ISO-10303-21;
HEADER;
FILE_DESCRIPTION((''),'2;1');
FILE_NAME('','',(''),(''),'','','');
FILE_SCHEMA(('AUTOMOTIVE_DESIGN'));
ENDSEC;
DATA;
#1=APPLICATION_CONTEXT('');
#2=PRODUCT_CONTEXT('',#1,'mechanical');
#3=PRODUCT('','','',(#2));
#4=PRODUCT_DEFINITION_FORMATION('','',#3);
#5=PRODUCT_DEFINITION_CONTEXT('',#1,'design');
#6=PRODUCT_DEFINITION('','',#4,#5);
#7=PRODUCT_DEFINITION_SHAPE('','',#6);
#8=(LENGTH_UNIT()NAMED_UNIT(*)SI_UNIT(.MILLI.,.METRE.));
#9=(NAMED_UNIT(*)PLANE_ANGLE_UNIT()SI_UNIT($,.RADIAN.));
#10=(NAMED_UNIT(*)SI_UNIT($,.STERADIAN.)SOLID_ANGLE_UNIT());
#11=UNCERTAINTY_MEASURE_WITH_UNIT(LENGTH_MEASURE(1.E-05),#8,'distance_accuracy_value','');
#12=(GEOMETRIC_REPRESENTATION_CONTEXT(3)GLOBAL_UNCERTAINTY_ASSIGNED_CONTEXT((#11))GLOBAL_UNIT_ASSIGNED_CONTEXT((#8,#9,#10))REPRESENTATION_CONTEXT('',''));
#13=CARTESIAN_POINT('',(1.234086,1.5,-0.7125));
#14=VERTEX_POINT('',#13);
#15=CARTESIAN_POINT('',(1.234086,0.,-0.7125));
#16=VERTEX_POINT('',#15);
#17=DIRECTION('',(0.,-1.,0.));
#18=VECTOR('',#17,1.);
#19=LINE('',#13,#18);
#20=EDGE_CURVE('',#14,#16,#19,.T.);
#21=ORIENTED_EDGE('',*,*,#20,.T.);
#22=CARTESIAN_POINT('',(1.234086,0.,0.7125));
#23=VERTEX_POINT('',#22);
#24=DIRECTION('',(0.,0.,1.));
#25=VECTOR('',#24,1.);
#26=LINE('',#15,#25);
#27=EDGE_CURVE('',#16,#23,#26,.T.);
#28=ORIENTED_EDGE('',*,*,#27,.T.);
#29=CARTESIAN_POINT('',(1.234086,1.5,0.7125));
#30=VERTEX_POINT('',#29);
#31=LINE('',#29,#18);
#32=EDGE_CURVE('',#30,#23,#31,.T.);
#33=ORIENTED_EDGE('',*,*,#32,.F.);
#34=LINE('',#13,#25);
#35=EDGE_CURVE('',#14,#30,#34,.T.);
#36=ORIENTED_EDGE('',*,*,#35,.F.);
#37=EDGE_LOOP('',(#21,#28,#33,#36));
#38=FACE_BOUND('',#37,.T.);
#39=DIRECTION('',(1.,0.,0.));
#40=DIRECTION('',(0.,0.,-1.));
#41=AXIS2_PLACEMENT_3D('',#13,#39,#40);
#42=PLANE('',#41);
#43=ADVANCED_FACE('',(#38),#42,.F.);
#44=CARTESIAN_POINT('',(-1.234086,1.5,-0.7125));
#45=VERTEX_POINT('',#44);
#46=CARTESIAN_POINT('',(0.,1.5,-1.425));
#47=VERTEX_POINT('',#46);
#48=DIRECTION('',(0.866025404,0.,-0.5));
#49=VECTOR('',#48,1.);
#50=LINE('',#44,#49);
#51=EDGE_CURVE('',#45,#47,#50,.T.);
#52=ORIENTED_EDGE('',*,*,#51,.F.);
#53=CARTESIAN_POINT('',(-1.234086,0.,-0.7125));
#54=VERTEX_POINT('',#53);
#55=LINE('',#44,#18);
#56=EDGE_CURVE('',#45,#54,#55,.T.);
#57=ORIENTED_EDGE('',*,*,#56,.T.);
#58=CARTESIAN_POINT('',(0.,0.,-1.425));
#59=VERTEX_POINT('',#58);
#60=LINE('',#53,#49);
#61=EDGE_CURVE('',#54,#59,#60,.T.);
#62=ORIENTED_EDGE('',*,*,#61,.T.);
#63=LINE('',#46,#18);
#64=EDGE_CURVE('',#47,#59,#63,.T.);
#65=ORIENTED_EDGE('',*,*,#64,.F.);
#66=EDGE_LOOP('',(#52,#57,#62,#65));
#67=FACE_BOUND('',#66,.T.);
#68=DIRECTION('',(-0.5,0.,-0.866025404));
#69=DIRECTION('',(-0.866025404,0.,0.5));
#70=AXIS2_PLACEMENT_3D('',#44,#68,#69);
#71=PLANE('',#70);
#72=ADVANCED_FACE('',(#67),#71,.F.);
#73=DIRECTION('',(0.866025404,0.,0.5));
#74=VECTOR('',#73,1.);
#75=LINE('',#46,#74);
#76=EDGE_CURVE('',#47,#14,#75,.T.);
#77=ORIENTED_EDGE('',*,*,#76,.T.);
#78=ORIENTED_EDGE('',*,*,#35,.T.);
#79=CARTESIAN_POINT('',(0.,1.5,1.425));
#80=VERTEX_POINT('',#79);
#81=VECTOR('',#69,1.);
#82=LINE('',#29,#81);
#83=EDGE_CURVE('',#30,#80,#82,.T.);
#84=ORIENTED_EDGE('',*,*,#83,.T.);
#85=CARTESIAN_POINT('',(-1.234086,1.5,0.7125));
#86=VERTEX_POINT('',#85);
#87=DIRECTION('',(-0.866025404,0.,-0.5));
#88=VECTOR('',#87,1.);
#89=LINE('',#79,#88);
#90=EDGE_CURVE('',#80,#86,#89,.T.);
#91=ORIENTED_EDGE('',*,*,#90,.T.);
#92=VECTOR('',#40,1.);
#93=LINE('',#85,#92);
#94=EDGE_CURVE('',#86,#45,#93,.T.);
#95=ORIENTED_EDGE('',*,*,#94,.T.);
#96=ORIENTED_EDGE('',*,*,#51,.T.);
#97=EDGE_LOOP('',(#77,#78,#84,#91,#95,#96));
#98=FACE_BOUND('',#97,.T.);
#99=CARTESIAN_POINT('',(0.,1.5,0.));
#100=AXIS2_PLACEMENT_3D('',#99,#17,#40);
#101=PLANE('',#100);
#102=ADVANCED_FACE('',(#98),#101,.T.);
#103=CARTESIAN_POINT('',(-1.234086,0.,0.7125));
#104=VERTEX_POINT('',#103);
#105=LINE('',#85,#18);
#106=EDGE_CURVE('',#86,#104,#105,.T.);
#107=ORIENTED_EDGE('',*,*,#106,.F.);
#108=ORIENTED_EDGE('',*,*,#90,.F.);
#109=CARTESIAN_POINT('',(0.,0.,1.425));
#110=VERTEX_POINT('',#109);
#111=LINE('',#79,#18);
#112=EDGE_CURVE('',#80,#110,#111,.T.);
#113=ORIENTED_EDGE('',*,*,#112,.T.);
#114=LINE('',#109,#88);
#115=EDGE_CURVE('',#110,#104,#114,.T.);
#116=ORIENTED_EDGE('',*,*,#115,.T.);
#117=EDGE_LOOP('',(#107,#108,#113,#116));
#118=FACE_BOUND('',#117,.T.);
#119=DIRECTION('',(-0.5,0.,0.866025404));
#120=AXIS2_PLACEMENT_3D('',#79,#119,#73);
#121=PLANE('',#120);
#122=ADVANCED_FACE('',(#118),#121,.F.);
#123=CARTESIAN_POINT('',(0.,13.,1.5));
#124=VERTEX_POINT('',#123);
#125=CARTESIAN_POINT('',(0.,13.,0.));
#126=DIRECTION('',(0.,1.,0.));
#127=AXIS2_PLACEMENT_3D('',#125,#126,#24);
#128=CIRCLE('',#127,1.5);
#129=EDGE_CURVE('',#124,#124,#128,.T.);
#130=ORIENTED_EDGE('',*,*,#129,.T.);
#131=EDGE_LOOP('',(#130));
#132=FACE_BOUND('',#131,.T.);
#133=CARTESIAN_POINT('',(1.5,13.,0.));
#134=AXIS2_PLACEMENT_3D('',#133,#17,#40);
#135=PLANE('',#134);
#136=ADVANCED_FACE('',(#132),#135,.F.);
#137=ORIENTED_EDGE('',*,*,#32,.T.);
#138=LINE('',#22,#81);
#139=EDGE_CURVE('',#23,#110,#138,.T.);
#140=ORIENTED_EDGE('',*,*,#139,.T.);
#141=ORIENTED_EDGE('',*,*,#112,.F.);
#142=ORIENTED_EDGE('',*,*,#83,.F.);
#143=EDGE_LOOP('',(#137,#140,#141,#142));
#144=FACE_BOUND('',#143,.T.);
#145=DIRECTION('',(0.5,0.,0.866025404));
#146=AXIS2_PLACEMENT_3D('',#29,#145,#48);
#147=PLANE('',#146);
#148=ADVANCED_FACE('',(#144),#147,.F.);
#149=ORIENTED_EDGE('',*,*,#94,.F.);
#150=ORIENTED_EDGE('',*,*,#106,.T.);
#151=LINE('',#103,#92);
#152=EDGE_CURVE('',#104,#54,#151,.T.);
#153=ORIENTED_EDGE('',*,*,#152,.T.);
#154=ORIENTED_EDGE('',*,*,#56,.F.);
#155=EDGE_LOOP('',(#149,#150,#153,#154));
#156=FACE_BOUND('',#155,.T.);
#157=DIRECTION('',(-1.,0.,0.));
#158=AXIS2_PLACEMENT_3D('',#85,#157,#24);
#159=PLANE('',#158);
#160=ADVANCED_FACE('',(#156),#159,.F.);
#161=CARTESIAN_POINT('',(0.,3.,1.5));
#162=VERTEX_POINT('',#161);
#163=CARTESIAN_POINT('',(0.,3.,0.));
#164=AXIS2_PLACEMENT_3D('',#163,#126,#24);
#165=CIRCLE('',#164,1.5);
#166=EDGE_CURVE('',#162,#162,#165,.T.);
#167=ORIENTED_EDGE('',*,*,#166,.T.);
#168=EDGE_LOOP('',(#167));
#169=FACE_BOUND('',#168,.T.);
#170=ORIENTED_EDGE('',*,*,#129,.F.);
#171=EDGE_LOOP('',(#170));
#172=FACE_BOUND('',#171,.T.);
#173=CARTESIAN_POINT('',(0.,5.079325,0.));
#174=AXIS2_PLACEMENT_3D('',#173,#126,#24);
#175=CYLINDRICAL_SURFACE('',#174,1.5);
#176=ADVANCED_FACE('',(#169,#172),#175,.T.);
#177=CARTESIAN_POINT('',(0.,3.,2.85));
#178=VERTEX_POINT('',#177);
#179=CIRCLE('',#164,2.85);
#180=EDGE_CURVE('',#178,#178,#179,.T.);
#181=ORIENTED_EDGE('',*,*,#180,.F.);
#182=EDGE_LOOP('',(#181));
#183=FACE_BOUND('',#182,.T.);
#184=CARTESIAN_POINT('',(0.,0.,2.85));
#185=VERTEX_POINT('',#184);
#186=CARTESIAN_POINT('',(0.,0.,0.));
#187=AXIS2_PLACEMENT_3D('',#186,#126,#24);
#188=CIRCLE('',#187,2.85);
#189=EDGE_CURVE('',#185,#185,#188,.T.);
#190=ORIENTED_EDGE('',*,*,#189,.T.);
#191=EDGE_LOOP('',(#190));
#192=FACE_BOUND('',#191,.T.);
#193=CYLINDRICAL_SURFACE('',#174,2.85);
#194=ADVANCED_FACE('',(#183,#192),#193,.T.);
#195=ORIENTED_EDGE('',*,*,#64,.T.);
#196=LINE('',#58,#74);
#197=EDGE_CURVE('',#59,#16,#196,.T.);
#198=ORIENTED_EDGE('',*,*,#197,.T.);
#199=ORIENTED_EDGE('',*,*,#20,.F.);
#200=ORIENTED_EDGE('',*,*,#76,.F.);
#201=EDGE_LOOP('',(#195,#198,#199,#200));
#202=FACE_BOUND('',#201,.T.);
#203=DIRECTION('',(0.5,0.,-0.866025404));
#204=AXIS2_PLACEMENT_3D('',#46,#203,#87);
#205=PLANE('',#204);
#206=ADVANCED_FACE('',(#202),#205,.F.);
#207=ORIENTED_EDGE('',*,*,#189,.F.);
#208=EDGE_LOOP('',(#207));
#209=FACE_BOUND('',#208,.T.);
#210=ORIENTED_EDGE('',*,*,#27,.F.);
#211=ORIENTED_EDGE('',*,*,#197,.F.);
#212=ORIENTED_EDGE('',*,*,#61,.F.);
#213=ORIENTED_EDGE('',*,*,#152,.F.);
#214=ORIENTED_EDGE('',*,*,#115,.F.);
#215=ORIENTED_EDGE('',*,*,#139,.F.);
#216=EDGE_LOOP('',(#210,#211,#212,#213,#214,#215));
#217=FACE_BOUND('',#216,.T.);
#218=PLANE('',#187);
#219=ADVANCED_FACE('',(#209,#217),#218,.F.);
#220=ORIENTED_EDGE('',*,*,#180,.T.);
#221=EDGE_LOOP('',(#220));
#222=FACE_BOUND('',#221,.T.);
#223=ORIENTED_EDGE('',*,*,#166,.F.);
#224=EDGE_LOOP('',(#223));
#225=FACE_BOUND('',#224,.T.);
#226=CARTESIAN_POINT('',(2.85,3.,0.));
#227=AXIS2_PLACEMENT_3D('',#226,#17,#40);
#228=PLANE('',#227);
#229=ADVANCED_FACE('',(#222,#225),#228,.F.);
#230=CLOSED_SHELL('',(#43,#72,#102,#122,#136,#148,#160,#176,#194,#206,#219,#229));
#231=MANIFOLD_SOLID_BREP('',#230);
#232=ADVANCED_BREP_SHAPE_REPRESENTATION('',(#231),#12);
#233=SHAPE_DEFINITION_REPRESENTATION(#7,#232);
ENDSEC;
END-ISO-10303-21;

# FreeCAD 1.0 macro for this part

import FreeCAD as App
import Part
import Sketcher
Q = App.Units.Quantity

doc = App.newDocument("Part")
body = doc.addObject("PartDesign::Body", "Body")

# Sketch on XY plane
sketch1 = body.newObject("Sketcher::SketchObject", "Sketch")
sketch1.AttachmentSupport = (doc.getObject("XY_Plane"), [""])
sketch1.MapMode = "FlatFace"
sketch1.addGeometry([
    Part.LineSegment(App.Vector(0, 0, 0), App.Vector(2.85, 0, 0)),  # 0
    Part.LineSegment(App.Vector(2.85, 0, 0), App.Vector(2.85, 3, 0)),  # 1
    Part.LineSegment(App.Vector(2.85, 3, 0), App.Vector(1.5, 3, 0)),  # 2
    Part.LineSegment(App.Vector(1.5, 3, 0), App.Vector(1.5, 13, 0)),  # 3
    Part.LineSegment(App.Vector(1.5, 13, 0), App.Vector(0, 13, 0)),  # 4
    Part.LineSegment(App.Vector(0, 13, 0), App.Vector(0, 0, 0)),  # 5
], False)
sketch1.addConstraint([
    Sketcher.Constraint("Coincident", 0, 2, 1, 1),
    Sketcher.Constraint("Coincident", 1, 2, 2, 1),
    Sketcher.Constraint("Coincident", 2, 2, 3, 1),
    Sketcher.Constraint("Coincident", 3, 2, 4, 1),
    Sketcher.Constraint("Coincident", 4, 2, 5, 1),
    Sketcher.Constraint("Coincident", 5, 2, 0, 1),
    Sketcher.Constraint("Horizontal", 0),
    Sketcher.Constraint("Vertical", 1),
    Sketcher.Constraint("Horizontal", 2),
    Sketcher.Constraint("Vertical", 3),
    Sketcher.Constraint("Horizontal", 4),
    Sketcher.Constraint("Vertical", 5),
    Sketcher.Constraint("Coincident", 5, 2, -1, 1),
    Sketcher.Constraint("DistanceY", 1, 1, 1, 2, 3.0),
    Sketcher.Constraint("DistanceY", 3, 1, 3, 2, 10.0),
    Sketcher.Constraint("DistanceX", 4, 2, 4, 1, 1.5),
    Sketcher.Constraint("DistanceX", 0, 1, 0, 2, 2.85),
])
revolution = body.newObject("PartDesign::Revolution", "Revolution")
revolution.Profile = sketch1
revolution.ReferenceAxis = (sketch1, ["V_Axis"])
revolution.Angle = 360

# Sketch on XZ plane
sketch2 = body.newObject("Sketcher::SketchObject", "Sketch001")
sketch2.AttachmentSupport = (doc.getObject("XZ_Plane"), [""])
sketch2.MapMode = "FlatFace"
sketch2.addGeometry([
    Part.LineSegment(App.Vector(0, -1.425, 0), App.Vector(1.234086, -0.7125, 0)),  # 0
    Part.LineSegment(App.Vector(1.234086, -0.7125, 0), App.Vector(1.234086, 0.7125, 0)),  # 1
    Part.LineSegment(App.Vector(1.234086, 0.7125, 0), App.Vector(0, 1.425, 0)),  # 2
    Part.LineSegment(App.Vector(0, 1.425, 0), App.Vector(-1.234086, 0.7125, 0)),  # 3
    Part.LineSegment(App.Vector(-1.234086, 0.7125, 0), App.Vector(-1.234086, -0.7125, 0)),  # 4
    Part.LineSegment(App.Vector(-1.234086, -0.7125, 0), App.Vector(0, -1.425, 0)),  # 5
], False)
sketch2.addConstraint([
    Sketcher.Constraint("Coincident", 0, 2, 1, 1),
    Sketcher.Constraint("Coincident", 1, 2, 2, 1),
    Sketcher.Constraint("Coincident", 2, 2, 3, 1),
    Sketcher.Constraint("Coincident", 3, 2, 4, 1),
    Sketcher.Constraint("Coincident", 4, 2, 5, 1),
    Sketcher.Constraint("Coincident", 5, 2, 0, 1),
    Sketcher.Constraint("Vertical", 1),
    Sketcher.Constraint("Vertical", 4),
    Sketcher.Constraint("Symmetric", 0, 2, 3, 2, -1, 1),
    Sketcher.Constraint("Symmetric", 2, 2, 5, 2, -1, 1),
    Sketcher.Constraint("PointOnObject", 2, 2, -2),
    Sketcher.Constraint("Parallel", 2, 5),
    Sketcher.Constraint("Horizontal", 1, 2, 3, 2),
    Sketcher.Constraint("Angle", 0, Q("30 deg")),
    Sketcher.Constraint("DistanceY", 1, 1, 1, 2, 1.425),
    Sketcher.Constraint("DistanceY", 5, 2, 2, 2, 2.85),
])
pocket1 = body.newObject("PartDesign::Pocket", "Pocket")
pocket1.Profile = sketch2
pocket1.Length = 1.5

doc.recompute()
